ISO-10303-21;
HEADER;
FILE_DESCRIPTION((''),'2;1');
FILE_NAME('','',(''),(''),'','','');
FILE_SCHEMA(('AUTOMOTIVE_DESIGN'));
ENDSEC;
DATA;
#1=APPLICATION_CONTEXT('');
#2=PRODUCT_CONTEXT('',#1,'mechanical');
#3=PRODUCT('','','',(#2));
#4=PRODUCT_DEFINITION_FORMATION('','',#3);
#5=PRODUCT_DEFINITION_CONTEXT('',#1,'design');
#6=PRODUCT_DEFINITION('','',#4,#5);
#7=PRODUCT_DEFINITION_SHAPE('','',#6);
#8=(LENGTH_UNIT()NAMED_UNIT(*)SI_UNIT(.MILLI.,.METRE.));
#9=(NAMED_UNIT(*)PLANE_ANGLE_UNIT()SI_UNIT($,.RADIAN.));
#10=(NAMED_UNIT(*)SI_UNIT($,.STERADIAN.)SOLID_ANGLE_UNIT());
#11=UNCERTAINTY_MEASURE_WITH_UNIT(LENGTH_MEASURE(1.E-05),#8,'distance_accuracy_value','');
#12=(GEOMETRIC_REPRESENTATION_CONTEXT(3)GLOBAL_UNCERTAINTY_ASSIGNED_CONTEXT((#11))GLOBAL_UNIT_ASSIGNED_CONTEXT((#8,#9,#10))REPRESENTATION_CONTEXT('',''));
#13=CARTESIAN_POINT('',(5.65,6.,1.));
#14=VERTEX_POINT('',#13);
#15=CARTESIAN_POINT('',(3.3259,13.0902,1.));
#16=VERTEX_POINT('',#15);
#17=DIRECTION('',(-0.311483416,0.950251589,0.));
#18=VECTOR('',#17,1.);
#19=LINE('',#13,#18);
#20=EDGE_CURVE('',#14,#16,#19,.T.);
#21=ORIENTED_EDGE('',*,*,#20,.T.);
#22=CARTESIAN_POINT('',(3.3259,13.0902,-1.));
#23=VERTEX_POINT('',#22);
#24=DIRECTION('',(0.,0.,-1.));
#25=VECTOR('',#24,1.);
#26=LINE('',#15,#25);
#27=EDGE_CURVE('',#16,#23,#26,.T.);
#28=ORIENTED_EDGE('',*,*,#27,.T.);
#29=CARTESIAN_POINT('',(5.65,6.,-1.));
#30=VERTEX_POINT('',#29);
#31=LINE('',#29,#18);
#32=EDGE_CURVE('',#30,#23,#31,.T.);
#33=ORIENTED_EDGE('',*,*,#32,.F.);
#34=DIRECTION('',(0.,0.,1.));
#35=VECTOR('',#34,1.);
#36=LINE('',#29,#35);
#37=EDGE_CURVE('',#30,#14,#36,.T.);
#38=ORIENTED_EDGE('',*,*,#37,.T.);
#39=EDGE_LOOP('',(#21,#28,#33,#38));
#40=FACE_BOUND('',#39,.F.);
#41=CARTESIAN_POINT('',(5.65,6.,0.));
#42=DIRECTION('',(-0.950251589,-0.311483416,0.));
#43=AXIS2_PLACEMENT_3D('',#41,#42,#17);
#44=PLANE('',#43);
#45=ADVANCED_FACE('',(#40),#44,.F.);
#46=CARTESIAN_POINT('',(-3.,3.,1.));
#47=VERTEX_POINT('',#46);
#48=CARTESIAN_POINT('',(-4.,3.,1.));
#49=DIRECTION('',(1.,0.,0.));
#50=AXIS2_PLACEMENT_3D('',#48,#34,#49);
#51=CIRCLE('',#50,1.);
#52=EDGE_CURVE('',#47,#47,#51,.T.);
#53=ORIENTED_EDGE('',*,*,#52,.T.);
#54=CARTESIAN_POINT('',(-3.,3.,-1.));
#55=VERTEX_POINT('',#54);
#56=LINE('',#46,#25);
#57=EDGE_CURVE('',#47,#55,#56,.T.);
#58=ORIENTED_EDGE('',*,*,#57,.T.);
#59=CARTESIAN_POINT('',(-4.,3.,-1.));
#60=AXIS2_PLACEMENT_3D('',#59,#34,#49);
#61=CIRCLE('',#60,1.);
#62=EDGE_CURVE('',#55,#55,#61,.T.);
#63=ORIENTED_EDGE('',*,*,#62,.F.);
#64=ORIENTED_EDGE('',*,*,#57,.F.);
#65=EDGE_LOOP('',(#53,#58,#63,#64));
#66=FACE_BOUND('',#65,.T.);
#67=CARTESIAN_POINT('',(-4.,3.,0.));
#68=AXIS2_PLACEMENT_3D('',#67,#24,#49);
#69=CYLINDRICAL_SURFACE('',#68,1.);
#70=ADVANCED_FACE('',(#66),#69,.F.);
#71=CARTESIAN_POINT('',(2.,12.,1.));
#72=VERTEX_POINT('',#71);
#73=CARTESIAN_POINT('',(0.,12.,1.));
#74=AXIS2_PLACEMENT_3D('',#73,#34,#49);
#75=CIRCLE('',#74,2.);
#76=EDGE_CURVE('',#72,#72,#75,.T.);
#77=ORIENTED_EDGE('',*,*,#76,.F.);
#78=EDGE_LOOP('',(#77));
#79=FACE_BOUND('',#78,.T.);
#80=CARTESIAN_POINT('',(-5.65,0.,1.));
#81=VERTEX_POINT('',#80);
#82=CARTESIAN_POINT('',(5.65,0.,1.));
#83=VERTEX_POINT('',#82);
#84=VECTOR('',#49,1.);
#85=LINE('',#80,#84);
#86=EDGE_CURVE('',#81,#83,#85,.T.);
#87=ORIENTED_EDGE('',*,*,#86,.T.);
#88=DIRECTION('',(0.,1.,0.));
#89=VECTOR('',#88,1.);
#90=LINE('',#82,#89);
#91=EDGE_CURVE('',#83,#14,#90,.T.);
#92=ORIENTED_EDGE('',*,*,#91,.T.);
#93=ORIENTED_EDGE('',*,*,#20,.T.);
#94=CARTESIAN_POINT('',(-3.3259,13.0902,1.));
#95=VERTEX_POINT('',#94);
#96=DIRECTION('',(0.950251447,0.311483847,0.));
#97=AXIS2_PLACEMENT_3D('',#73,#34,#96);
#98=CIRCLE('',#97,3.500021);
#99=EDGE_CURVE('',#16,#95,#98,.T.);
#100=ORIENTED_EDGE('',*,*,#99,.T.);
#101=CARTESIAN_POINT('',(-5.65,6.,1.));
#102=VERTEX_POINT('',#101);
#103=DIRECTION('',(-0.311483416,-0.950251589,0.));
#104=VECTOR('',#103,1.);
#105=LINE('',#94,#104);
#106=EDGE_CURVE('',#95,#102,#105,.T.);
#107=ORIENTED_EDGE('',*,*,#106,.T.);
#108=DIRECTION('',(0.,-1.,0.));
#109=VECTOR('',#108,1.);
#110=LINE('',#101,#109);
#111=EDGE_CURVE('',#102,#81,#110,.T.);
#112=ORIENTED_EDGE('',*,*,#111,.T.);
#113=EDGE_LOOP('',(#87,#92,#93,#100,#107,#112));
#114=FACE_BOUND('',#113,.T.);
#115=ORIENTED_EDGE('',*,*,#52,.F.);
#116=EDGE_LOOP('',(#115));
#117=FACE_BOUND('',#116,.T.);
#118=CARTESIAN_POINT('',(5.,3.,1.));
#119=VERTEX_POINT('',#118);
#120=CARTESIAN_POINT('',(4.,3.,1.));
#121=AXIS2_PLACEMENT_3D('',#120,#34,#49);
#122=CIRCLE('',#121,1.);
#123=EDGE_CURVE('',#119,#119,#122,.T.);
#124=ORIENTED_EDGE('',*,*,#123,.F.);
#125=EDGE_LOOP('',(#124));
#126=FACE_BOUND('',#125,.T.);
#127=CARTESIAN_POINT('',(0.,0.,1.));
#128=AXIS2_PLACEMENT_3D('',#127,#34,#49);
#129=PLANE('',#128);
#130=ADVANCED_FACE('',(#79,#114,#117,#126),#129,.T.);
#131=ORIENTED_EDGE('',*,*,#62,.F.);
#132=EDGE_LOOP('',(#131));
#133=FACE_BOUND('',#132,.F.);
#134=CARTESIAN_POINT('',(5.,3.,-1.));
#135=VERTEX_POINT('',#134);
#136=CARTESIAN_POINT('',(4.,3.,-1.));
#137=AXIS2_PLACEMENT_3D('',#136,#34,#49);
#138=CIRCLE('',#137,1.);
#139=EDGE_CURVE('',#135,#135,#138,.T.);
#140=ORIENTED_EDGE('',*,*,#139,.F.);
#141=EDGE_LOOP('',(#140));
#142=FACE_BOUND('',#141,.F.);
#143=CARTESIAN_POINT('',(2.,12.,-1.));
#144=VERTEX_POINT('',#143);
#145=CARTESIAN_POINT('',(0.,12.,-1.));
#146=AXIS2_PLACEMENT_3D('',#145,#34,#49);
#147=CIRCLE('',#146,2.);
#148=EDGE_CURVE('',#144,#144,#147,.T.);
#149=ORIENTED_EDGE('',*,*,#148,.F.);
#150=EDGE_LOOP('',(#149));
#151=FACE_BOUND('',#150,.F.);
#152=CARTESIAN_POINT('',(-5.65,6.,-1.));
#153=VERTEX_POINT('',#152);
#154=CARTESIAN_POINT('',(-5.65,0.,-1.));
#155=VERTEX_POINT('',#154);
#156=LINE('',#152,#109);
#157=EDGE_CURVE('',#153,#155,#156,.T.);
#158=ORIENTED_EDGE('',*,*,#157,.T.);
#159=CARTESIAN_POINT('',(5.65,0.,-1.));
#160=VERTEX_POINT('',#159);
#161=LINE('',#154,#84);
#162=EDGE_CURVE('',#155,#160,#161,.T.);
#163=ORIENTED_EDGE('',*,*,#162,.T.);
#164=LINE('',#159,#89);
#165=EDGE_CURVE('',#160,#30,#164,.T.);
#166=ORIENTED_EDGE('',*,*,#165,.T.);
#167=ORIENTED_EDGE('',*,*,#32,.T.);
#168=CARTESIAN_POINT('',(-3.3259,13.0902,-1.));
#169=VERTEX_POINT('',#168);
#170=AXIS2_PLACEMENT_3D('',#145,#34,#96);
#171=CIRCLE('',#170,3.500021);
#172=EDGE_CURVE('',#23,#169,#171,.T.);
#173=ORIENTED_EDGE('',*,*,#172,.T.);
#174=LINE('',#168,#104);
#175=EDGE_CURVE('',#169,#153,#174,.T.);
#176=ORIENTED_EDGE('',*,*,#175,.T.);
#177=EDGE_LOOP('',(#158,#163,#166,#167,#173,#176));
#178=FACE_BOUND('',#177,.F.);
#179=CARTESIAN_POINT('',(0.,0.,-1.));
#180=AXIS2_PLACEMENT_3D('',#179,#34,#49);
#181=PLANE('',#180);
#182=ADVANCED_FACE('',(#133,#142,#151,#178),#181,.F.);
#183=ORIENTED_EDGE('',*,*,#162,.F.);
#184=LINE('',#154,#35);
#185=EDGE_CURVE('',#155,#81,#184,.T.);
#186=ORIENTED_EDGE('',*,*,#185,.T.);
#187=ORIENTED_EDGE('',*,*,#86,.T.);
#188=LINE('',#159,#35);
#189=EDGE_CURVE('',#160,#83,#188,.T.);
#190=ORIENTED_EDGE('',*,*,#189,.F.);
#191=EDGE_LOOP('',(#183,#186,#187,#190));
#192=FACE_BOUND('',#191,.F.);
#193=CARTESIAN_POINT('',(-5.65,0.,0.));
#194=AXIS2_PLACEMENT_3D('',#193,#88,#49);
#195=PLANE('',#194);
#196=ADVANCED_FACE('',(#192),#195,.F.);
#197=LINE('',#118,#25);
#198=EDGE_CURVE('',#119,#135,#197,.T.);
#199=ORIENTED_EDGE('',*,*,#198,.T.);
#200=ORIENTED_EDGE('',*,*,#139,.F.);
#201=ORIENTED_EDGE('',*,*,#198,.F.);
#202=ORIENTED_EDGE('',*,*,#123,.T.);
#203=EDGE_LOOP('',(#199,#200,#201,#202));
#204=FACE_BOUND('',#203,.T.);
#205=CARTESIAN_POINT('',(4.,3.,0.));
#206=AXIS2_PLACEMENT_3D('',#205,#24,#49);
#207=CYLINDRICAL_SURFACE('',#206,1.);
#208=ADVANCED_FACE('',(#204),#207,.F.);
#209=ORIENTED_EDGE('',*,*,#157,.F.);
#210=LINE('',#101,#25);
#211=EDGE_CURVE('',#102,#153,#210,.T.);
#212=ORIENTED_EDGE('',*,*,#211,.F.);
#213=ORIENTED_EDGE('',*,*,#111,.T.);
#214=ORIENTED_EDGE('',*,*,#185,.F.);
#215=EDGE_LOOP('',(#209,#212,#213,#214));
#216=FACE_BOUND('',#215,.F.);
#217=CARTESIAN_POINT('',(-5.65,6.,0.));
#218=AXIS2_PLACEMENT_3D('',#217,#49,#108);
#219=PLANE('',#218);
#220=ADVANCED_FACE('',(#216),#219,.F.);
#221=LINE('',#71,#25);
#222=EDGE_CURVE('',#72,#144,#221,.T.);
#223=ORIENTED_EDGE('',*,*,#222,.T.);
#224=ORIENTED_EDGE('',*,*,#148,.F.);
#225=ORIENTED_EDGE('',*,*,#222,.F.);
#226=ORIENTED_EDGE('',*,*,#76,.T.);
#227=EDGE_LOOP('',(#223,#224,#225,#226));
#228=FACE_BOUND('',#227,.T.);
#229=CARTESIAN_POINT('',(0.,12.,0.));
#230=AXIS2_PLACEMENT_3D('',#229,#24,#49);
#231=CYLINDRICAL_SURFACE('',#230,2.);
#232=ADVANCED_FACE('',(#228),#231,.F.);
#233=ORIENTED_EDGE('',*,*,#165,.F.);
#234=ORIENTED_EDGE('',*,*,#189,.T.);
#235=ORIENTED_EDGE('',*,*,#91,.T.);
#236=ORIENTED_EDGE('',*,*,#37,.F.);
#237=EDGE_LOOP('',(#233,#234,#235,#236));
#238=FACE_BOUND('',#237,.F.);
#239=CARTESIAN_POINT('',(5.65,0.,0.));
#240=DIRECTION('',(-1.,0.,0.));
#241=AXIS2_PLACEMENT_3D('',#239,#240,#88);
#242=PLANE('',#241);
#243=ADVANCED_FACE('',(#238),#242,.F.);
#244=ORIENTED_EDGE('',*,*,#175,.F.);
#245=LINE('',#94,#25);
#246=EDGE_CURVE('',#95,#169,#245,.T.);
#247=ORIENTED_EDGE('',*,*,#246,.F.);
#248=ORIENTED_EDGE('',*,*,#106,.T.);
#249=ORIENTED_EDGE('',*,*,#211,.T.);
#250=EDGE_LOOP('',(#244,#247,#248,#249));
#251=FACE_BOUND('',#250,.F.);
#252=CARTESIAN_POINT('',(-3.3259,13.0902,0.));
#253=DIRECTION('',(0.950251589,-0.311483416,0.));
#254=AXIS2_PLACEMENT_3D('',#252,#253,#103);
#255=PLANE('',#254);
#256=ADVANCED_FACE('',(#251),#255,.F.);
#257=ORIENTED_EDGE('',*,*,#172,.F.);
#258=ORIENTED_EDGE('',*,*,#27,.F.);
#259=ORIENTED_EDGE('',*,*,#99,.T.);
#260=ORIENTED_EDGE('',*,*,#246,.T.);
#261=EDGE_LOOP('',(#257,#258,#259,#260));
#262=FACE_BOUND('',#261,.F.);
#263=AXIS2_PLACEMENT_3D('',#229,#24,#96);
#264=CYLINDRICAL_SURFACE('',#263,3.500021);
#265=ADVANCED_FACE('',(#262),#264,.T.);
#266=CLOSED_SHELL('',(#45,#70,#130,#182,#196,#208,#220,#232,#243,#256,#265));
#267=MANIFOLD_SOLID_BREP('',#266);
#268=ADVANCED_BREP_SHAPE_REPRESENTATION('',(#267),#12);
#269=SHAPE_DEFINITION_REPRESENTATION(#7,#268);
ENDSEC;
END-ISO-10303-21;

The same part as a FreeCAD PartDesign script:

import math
import FreeCAD as App
import Part
import Sketcher

V = App.Vector
Q = App.Units.Quantity

doc = App.newDocument("Part")
body = doc.addObject("PartDesign::Body", "Body")

# Sketch on XY plane
sketch1 = doc.addObject("Sketcher::SketchObject", "Sketch")
body.addObject(sketch1)
sketch1.AttachmentSupport = (doc.XY_Plane, [""])
sketch1.MapMode = "FlatFace"
sketch1.addGeometry([
    Part.LineSegment(V(-5.7, 6, 0), V(-5.7, 0, 0)),  # 0
    Part.LineSegment(V(-5.7, 0, 0), V(5.7, 0, 0)),  # 1
    Part.LineSegment(V(5.7, 0, 0), V(5.7, 6, 0)),  # 2
    Part.LineSegment(V(5.7, 6, 0), V(3.3, 13.1, 0)),  # 3
    Part.ArcOfCircle(Part.Circle(V(0, 12, 0), V(0, 0, 1), 3.5), math.radians(18), math.radians(162)),  # 4
    Part.LineSegment(V(-3.3, 13.1, 0), V(-5.7, 6, 0)),  # 5
    Part.Circle(V(-4, 3, 0), V(0, 0, 1), 1),  # 6
    Part.Circle(V(4, 3, 0), V(0, 0, 1), 1),  # 7
    Part.Circle(V(0, 12, 0), V(0, 0, 1), 2),  # 8
], False)
sketch1.addConstraint([
    Sketcher.Constraint("Coincident", 0, 2, 1, 1),
    Sketcher.Constraint("Coincident", 1, 2, 2, 1),
    Sketcher.Constraint("Coincident", 2, 2, 3, 1),
    Sketcher.Constraint("Tangent", 3, 2, 4, 1),
    Sketcher.Constraint("Tangent", 4, 2, 5, 1),
    Sketcher.Constraint("Coincident", 5, 2, 0, 1),
    Sketcher.Constraint("Vertical", 0),
    Sketcher.Constraint("Horizontal", 1),
    Sketcher.Constraint("Vertical", 2),
    Sketcher.Constraint("Coincident", 8, 3, 4, 3),
    Sketcher.Constraint("Equal", 6, 7),
    Sketcher.Constraint("Symmetric", 0, 2, 1, 2, -1, 1),
    Sketcher.Constraint("Symmetric", 6, 3, 7, 3, -2),
    Sketcher.Constraint("Symmetric", 3, 2, 4, 2, -2),
    Sketcher.Constraint("Diameter", 6, Q("2 mm")),
    Sketcher.Constraint("Diameter", 8, Q("4 mm")),
    Sketcher.Constraint("Radius", 4, Q("3.5 mm")),
    Sketcher.Constraint("DistanceY", 0, 2, 0, 1, Q("6 mm")),
    Sketcher.Constraint("DistanceX", 1, 1, 1, 2, Q("11.3 mm")),
    Sketcher.Constraint("DistanceY", -1, 1, 4, 3, Q("12 mm")),
    Sketcher.Constraint("DistanceX", 6, 3, -1, 1, Q("4 mm")),
    Sketcher.Constraint("DistanceY", -1, 1, 6, 3, Q("3 mm")),
])
pad1 = doc.addObject("PartDesign::Pad", "Pad")
body.addObject(pad1)
pad1.Profile = sketch1
pad1.Length = 2
pad1.Midplane = True

doc.recompute()
